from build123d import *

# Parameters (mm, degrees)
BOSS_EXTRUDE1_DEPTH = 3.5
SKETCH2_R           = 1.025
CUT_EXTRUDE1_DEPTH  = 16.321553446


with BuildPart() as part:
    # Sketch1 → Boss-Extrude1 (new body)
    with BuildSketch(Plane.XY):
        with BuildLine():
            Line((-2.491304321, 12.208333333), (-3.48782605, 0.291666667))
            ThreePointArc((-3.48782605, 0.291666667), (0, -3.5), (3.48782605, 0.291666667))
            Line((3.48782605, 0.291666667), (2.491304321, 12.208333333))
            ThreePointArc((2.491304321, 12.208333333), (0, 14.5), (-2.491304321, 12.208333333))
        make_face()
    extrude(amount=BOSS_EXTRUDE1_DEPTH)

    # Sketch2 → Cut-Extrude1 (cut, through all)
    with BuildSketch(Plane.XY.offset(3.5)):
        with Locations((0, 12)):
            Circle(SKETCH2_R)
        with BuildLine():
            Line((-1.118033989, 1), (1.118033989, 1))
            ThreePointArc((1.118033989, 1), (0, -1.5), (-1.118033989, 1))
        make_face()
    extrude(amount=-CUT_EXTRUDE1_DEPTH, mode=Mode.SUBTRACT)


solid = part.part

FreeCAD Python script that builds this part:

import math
import FreeCAD as App
import Part
import Sketcher
from FreeCAD import Vector
Q = App.Units.Quantity

doc = App.newDocument("Part")
body = doc.addObject("PartDesign::Body", "Body")

# Sketch on XY plane
sketch1 = doc.addObject("Sketcher::SketchObject", "Sketch")
body.addObject(sketch1)
sketch1.AttachmentSupport = (doc.XY_Plane, [""])
sketch1.MapMode = "FlatFace"
sketch1.addGeometry(Part.LineSegment(Vector(-2.491304, 12.208333, 0), Vector(-3.487826, 0.291667, 0)), False)
sketch1.addGeometry(Part.ArcOfCircle(Part.Circle(Vector(0, 0, 0), Vector(0, 0, 1), 3.5), math.radians(175.219808), math.radians(364.780192)), False)
sketch1.addGeometry(Part.LineSegment(Vector(3.487826, 0.291667, 0), Vector(2.491304, 12.208333, 0)), False)
sketch1.addGeometry(Part.ArcOfCircle(Part.Circle(Vector(0, 12, 0), Vector(0, 0, 1), 2.5), math.radians(4.780192), math.radians(175.219808)), False)
sketch1.addConstraint(Sketcher.Constraint("Tangent", 0, 2, 1, 1))
sketch1.addConstraint(Sketcher.Constraint("Tangent", 1, 2, 2, 1))
sketch1.addConstraint(Sketcher.Constraint("Tangent", 2, 2, 3, 1))
sketch1.addConstraint(Sketcher.Constraint("Tangent", 3, 2, 0, 1))
sketch1.addConstraint(Sketcher.Constraint("Coincident", 1, 3, -1, 1))
sketch1.addConstraint(Sketcher.Constraint("PointOnObject", 3, 3, -2))
sketch1.addConstraint(Sketcher.Constraint("Radius", 1, Q("3.5 mm")))
sketch1.addConstraint(Sketcher.Constraint("Radius", 3, Q("2.5 mm")))
sketch1.addConstraint(Sketcher.Constraint("DistanceY", -1, 1, 3, 3, Q("12 mm")))
pad1 = doc.addObject("PartDesign::Pad", "Pad")
body.addObject(pad1)
pad1.Profile = sketch1
pad1.Length = 3.5

# Sketch on XY plane
sketch2 = doc.addObject("Sketcher::SketchObject", "Sketch001")
body.addObject(sketch2)
sketch2.AttachmentSupport = (doc.XY_Plane, [""])
sketch2.MapMode = "FlatFace"
sketch2.AttachmentOffset = App.Placement(Vector(0, 0, 3.5), App.Rotation())
sketch2.addGeometry(Part.Circle(Vector(0, 12, 0), Vector(0, 0, 1), 1.025), False)
sketch2.addGeometry(Part.LineSegment(Vector(1.118034, 1, 0), Vector(-1.118034, 1, 0)), False)
sketch2.addGeometry(Part.ArcOfCircle(Part.Circle(Vector(0, 0, 0), Vector(0, 0, 1), 1.5), math.radians(138.189685), math.radians(401.810315)), False)
sketch2.addConstraint(Sketcher.Constraint("Coincident", 1, 1, 2, 2))
sketch2.addConstraint(Sketcher.Constraint("Coincident", 2, 1, 1, 2))
sketch2.addConstraint(Sketcher.Constraint("Horizontal", 1))
sketch2.addConstraint(Sketcher.Constraint("Coincident", 2, 3, -1, 1))
sketch2.addConstraint(Sketcher.Constraint("PointOnObject", 0, 3, -2))
sketch2.addConstraint(Sketcher.Constraint("Radius", 2, Q("1.5 mm")))
sketch2.addConstraint(Sketcher.Constraint("Diameter", 0, Q("2.05 mm")))
sketch2.addConstraint(Sketcher.Constraint("DistanceY", -1, 1, 0, 3, Q("12 mm")))
sketch2.addConstraint(Sketcher.Constraint("DistanceY", -1, 1, 1, 1, Q("1 mm")))
pocket1 = doc.addObject("PartDesign::Pocket", "Pocket")
body.addObject(pocket1)
pocket1.Profile = sketch2
pocket1.Type = "ThroughAll"

doc.recompute()
